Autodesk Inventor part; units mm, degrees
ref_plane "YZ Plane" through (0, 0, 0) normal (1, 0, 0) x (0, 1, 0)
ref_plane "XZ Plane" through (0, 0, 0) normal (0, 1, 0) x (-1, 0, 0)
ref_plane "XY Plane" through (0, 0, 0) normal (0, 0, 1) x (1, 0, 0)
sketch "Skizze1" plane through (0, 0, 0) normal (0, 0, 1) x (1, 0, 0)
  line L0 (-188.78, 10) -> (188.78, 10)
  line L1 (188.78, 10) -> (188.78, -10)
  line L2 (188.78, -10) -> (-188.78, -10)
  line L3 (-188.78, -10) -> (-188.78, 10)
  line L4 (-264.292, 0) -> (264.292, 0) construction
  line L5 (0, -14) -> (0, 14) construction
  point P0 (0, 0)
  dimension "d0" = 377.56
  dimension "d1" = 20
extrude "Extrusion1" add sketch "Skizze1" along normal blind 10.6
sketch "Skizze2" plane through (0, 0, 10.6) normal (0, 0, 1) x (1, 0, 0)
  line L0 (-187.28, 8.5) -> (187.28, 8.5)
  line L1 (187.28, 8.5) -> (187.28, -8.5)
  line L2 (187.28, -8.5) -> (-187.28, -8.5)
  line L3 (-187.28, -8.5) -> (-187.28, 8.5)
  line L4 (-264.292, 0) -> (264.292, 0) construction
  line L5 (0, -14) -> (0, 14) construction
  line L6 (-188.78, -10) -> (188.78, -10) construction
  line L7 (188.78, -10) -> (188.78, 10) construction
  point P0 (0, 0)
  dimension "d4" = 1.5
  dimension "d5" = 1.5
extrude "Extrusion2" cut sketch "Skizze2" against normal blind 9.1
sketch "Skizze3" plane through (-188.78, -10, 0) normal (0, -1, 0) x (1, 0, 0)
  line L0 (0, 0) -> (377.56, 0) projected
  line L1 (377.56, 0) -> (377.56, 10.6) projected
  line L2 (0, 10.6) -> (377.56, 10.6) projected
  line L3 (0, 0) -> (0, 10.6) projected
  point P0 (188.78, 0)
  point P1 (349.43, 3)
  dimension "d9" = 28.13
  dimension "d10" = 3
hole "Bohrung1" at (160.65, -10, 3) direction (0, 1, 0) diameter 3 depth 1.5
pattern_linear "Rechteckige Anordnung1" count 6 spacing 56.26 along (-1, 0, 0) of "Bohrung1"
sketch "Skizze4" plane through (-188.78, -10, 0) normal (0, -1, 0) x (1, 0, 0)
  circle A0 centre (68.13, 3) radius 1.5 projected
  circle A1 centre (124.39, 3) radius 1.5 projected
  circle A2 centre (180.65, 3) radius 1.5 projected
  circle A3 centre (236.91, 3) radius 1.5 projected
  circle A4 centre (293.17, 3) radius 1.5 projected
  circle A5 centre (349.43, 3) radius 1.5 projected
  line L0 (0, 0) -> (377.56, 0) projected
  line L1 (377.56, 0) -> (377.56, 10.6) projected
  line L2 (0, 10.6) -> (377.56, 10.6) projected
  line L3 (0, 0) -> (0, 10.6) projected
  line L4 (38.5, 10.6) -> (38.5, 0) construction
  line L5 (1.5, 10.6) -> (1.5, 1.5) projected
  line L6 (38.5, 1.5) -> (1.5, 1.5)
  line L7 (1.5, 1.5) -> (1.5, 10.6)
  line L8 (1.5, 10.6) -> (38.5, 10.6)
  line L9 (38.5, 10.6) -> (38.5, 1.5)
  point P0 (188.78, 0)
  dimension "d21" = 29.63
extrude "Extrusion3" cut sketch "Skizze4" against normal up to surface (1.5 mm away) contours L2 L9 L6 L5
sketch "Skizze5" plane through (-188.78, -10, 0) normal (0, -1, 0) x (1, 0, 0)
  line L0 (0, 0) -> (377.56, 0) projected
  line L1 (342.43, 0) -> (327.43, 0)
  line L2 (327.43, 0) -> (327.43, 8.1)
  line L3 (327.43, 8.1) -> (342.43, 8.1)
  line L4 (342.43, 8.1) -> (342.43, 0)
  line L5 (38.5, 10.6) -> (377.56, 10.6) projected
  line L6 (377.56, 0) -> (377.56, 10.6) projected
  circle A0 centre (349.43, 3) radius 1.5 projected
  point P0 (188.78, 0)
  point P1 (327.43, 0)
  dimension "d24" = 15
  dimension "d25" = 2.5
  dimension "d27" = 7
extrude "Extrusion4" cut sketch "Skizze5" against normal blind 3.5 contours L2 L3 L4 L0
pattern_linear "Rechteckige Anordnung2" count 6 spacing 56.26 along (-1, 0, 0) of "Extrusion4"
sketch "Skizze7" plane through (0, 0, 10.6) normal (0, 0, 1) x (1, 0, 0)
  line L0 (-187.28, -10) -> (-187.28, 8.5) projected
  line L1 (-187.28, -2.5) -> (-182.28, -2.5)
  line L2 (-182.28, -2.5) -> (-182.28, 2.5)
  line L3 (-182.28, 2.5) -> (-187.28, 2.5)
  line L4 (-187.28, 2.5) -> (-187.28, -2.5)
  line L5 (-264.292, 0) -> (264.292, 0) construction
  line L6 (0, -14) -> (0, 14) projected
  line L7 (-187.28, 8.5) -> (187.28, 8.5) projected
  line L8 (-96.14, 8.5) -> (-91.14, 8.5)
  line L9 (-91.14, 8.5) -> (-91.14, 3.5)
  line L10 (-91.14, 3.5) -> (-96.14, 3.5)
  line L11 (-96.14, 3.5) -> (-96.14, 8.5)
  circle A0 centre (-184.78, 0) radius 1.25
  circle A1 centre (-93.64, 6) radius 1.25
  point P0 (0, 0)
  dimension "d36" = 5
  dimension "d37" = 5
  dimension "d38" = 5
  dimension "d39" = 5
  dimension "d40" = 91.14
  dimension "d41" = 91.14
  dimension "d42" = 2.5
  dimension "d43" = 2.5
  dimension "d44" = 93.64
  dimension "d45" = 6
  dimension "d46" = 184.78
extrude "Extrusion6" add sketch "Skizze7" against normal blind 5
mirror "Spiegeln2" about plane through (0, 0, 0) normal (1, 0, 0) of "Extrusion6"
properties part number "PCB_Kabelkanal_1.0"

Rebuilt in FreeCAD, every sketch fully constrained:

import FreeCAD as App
import Part
import Sketcher
Q = App.Units.Quantity


def add_polygon(sketch, points):
    """Adds a closed chain of lines whose ends are joined by coincident constraints."""
    first, n = sketch.GeometryCount, len(points)
    for a, b in zip(points, points[1:] + points[:1]):
        sketch.addGeometry(Part.LineSegment(App.Vector(*a, 0), App.Vector(*b, 0)), False)
    for i in range(n):
        sketch.addConstraint(Sketcher.Constraint("Coincident", first + i, 2, first + (i + 1) % n, 1))

doc = App.newDocument("Part")
params = doc.addObject("Spreadsheet::Sheet", "Params")
for row, (alias, value) in enumerate([
    ("sketch1_height", "20 mm"),
    ("sketch1_width", "377.56 mm"),
    ("pad1_length", "10.6 mm"),
    ("sketch2_height", "17 mm"),
    ("sketch2_width", "374.56 mm"),
    ("pocket1_length", "9.1 mm"),
    ("sketch3_diameter", "3 mm"),
    ("hole_diameter", "3 mm"),
    ("hole_depth", "1.5 mm"),
    ("linearpattern_pitch", "56.26 mm"),
    ("sketch4_width", "37 mm"),
    ("sketch4_height", "9.1 mm"),
    ("pocket2_length", "1.5 mm"),
    ("sketch5_width", "15 mm"),
    ("sketch5_height", "8.1 mm"),
    ("pocket3_length", "3.5 mm"),
    ("linearpattern2_pitch", "56.26 mm"),
    ("sketch6_diameter", "2.5 mm"),
    ("sketch6_width", "5 mm"),
    ("pad2_length", "5 mm"),
], start=1):
    params.set(f"A{row}", alias)
    params.set(f"B{row}", "=" + value)
    params.setAlias(f"B{row}", alias)

body = doc.addObject("PartDesign::Body", "Body")

sketch1 = doc.addObject("Sketcher::SketchObject", "Sketch")
body.addObject(sketch1)
sketch1.AttachmentSupport = (doc.XY_Plane, [""])
sketch1.MapMode = "FlatFace"
add_polygon(sketch1, [(189, 10), (-189, 10), (-189, -10), (189, -10)])
sketch1.addConstraint(Sketcher.Constraint("Horizontal", 0))
sketch1.addConstraint(Sketcher.Constraint("Vertical", 1))
sketch1.addConstraint(Sketcher.Constraint("Horizontal", 2))
sketch1.addConstraint(Sketcher.Constraint("Vertical", 3))
sketch1.addConstraint(Sketcher.Constraint("Symmetric", 0, 2, 2, 2, -1, 1))
sketch1.addConstraint(Sketcher.Constraint("DistanceY", 1, 2, 1, 1, Q("20 mm")))
sketch1.addConstraint(Sketcher.Constraint("DistanceX", 0, 2, 0, 1, Q("377.56 mm")))
sketch1.setExpression("Constraints[9]", "Params.sketch1_height")
sketch1.setExpression("Constraints[10]", "Params.sketch1_width")
pad1 = doc.addObject("PartDesign::Pad", "Pad")
body.addObject(pad1)
pad1.Profile = sketch1
pad1.setExpression("Length", "Params.pad1_length")

sketch2 = doc.addObject("Sketcher::SketchObject", "Sketch001")
body.addObject(sketch2)
sketch2.AttachmentSupport = (doc.XY_Plane, [""])
sketch2.MapMode = "FlatFace"
sketch2.AttachmentOffset = App.Placement(App.Vector(0, 0, 10.6), App.Rotation())
add_polygon(sketch2, [(187, 8), (-187, 8), (-187, -8), (187, -8)])
sketch2.addConstraint(Sketcher.Constraint("Horizontal", 0))
sketch2.addConstraint(Sketcher.Constraint("Vertical", 1))
sketch2.addConstraint(Sketcher.Constraint("Horizontal", 2))
sketch2.addConstraint(Sketcher.Constraint("Vertical", 3))
sketch2.addConstraint(Sketcher.Constraint("Symmetric", 0, 2, 2, 2, -1, 1))
sketch2.addConstraint(Sketcher.Constraint("DistanceY", 1, 2, 1, 1, Q("17 mm")))
sketch2.addConstraint(Sketcher.Constraint("DistanceX", 0, 2, 0, 1, Q("374.56 mm")))
sketch2.setExpression("Constraints[9]", "Params.sketch2_height")
sketch2.setExpression("Constraints[10]", "Params.sketch2_width")
pocket1 = doc.addObject("PartDesign::Pocket", "Pocket")
body.addObject(pocket1)
pocket1.Profile = sketch2
pocket1.setExpression("Length", "Params.pocket1_length")

sketch3 = doc.addObject("Sketcher::SketchObject", "Sketch002")
body.addObject(sketch3)
sketch3.AttachmentSupport = (doc.XZ_Plane, [""])
sketch3.MapMode = "FlatFace"
sketch3.AttachmentOffset = App.Placement(App.Vector(0, 0, 10), App.Rotation())
sketch3.addGeometry(Part.Circle(App.Vector(160.7, 3, 0), App.Vector(0, 0, 1), 1.5), False)
sketch3.addConstraint(Sketcher.Constraint("Diameter", 0, Q("3 mm")))
sketch3.addConstraint(Sketcher.Constraint("DistanceY", -1, 1, 0, 3, Q("3 mm")))
sketch3.addConstraint(Sketcher.Constraint("DistanceX", -1, 1, 0, 3, Q("160.65 mm")))
sketch3.setExpression("Constraints[0]", "Params.sketch3_diameter")
doc.recompute()
hole = doc.addObject("PartDesign::Hole", "Hole")
body.addObject(hole)
hole.Profile = sketch3
hole.ThreadType = "None"
hole.setExpression("Diameter", "Params.hole_diameter")
hole.DepthType = "Dimension"
hole.setExpression("Depth", "Params.hole_depth")
hole.DrillPoint = "Flat"
doc.recompute()

linearpattern = doc.addObject("PartDesign::LinearPattern", "LinearPattern")
body.addObject(linearpattern)
linearpattern.Originals = [hole]
linearpattern.Direction = (doc.X_Axis, [""])
linearpattern.Mode = "offset"
linearpattern.setExpression("Offset", "Params.linearpattern_pitch")
linearpattern.Occurrences = 6
linearpattern.Reversed = True
body.Tip = linearpattern

sketch4 = doc.addObject("Sketcher::SketchObject", "Sketch003")
body.addObject(sketch4)
sketch4.AttachmentSupport = (doc.XZ_Plane, [""])
sketch4.MapMode = "FlatFace"
sketch4.AttachmentOffset = App.Placement(App.Vector(0, 0, 10), App.Rotation())
add_polygon(sketch4, [(-150, 11), (-187, 11), (-187, 2), (-150, 2)])
sketch4.addConstraint(Sketcher.Constraint("Horizontal", 0))
sketch4.addConstraint(Sketcher.Constraint("Vertical", 1))
sketch4.addConstraint(Sketcher.Constraint("Horizontal", 2))
sketch4.addConstraint(Sketcher.Constraint("Vertical", 3))
sketch4.addConstraint(Sketcher.Constraint("DistanceX", 0, 2, 0, 1, Q("37 mm")))
sketch4.addConstraint(Sketcher.Constraint("DistanceY", 1, 2, 1, 1, Q("9.1 mm")))
sketch4.addConstraint(Sketcher.Constraint("DistanceY", -1, 1, 0, 2, Q("10.6 mm")))
sketch4.addConstraint(Sketcher.Constraint("DistanceX", 0, 2, -1, 1, Q("187.28 mm")))
sketch4.setExpression("Constraints[8]", "Params.sketch4_width")
sketch4.setExpression("Constraints[9]", "Params.sketch4_height")
pocket2 = doc.addObject("PartDesign::Pocket", "Pocket001")
body.addObject(pocket2)
pocket2.Profile = sketch4
pocket2.setExpression("Length", "Params.pocket2_length")

sketch5 = doc.addObject("Sketcher::SketchObject", "Sketch004")
body.addObject(sketch5)
sketch5.AttachmentSupport = (doc.XZ_Plane, [""])
sketch5.MapMode = "FlatFace"
sketch5.AttachmentOffset = App.Placement(App.Vector(0, 0, 10), App.Rotation())
add_polygon(sketch5, [(139, 8), (139, 0), (154, 0), (154, 8)])
sketch5.addConstraint(Sketcher.Constraint("Vertical", 0))
sketch5.addConstraint(Sketcher.Constraint("Horizontal", 1))
sketch5.addConstraint(Sketcher.Constraint("Vertical", 2))
sketch5.addConstraint(Sketcher.Constraint("Horizontal", 3))
sketch5.addConstraint(Sketcher.Constraint("PointOnObject", 0, 2, -1))
sketch5.addConstraint(Sketcher.Constraint("DistanceX", 1, 1, 1, 2, Q("15 mm")))
sketch5.addConstraint(Sketcher.Constraint("DistanceY", 0, 2, 0, 1, Q("8.1 mm")))
sketch5.addConstraint(Sketcher.Constraint("DistanceX", -1, 1, 0, 2, Q("138.65 mm")))
sketch5.setExpression("Constraints[9]", "Params.sketch5_width")
sketch5.setExpression("Constraints[10]", "Params.sketch5_height")
pocket3 = doc.addObject("PartDesign::Pocket", "Pocket002")
body.addObject(pocket3)
pocket3.Profile = sketch5
pocket3.setExpression("Length", "Params.pocket3_length")
doc.recompute()

linearpattern2 = doc.addObject("PartDesign::LinearPattern", "LinearPattern001")
body.addObject(linearpattern2)
linearpattern2.Originals = [pocket3]
linearpattern2.Direction = (doc.X_Axis, [""])
linearpattern2.Mode = "offset"
linearpattern2.setExpression("Offset", "Params.linearpattern2_pitch")
linearpattern2.Occurrences = 6
linearpattern2.Reversed = True
body.Tip = linearpattern2

sketch6 = doc.addObject("Sketcher::SketchObject", "Sketch005")
body.addObject(sketch6)
sketch6.AttachmentSupport = (doc.XY_Plane, [""])
sketch6.MapMode = "FlatFace"
sketch6.AttachmentOffset = App.Placement(App.Vector(0, 0, 10.6), App.Rotation())
add_polygon(sketch6, [(-91.1, 8.5), (-96.1, 8.5), (-96.1, 3.5), (-91.1, 3.5)])
sketch6.addGeometry(Part.Circle(App.Vector(-93.6, 6, 0), App.Vector(0, 0, 1), 1.2), False)
add_polygon(sketch6, [(-187.3, 2.5), (-187.3, -2.5), (-182.3, -2.5), (-182.3, 2.5)])
sketch6.addGeometry(Part.Circle(App.Vector(-184.8, 0, 0), App.Vector(0, 0, 1), 1.2), False)
sketch6.addConstraint(Sketcher.Constraint("Horizontal", 0))
sketch6.addConstraint(Sketcher.Constraint("Vertical", 1))
sketch6.addConstraint(Sketcher.Constraint("Horizontal", 2))
sketch6.addConstraint(Sketcher.Constraint("Vertical", 3))
sketch6.addConstraint(Sketcher.Constraint("Vertical", 5))
sketch6.addConstraint(Sketcher.Constraint("Horizontal", 6))
sketch6.addConstraint(Sketcher.Constraint("Vertical", 7))
sketch6.addConstraint(Sketcher.Constraint("Horizontal", 8))
sketch6.addConstraint(Sketcher.Constraint("Equal", 4, 9))
sketch6.addConstraint(Sketcher.Constraint("PointOnObject", 9, 3, -1))
sketch6.addConstraint(Sketcher.Constraint("Equal", 2, 6))
sketch6.addConstraint(Sketcher.Constraint("Equal", 8, 1))
sketch6.addConstraint(Sketcher.Constraint("Equal", 3, 5))
sketch6.addConstraint(Sketcher.Constraint("Diameter", 4, Q("2.5 mm")))
sketch6.addConstraint(Sketcher.Constraint("DistanceX", 0, 2, 0, 1, Q("5 mm")))
sketch6.addConstraint(Sketcher.Constraint("DistanceY", -1, 1, 4, 3, Q("6 mm")))
sketch6.addConstraint(Sketcher.Constraint("DistanceY", 5, 2, 1, 2, Q("6 mm")))
sketch6.addConstraint(Sketcher.Constraint("DistanceY", 5, 2, -1, 1, Q("2.5 mm")))
sketch6.addConstraint(Sketcher.Constraint("DistanceX", 0, 2, 4, 3, Q("2.5 mm")))
sketch6.addConstraint(Sketcher.Constraint("DistanceX", 5, 2, 9, 3, Q("2.5 mm")))
sketch6.addConstraint(Sketcher.Constraint("DistanceX", 4, 3, -1, 1, Q("93.64 mm")))
sketch6.addConstraint(Sketcher.Constraint("DistanceX", 9, 3, -1, 1, Q("184.78 mm")))
sketch6.setExpression("Constraints[21]", "Params.sketch6_diameter")
sketch6.setExpression("Constraints[22]", "Params.sketch6_width")
pad2 = doc.addObject("PartDesign::Pad", "Pad001")
body.addObject(pad2)
pad2.Profile = sketch6
pad2.setExpression("Length", "Params.pad2_length")
pad2.Reversed = True
doc.recompute()

mirrored = doc.addObject("PartDesign::Mirrored", "Mirrored")
body.addObject(mirrored)
mirrored.Originals = [pad2]
mirrored.MirrorPlane = (doc.YZ_Plane, [""])
body.Tip = mirrored

doc.recompute()
